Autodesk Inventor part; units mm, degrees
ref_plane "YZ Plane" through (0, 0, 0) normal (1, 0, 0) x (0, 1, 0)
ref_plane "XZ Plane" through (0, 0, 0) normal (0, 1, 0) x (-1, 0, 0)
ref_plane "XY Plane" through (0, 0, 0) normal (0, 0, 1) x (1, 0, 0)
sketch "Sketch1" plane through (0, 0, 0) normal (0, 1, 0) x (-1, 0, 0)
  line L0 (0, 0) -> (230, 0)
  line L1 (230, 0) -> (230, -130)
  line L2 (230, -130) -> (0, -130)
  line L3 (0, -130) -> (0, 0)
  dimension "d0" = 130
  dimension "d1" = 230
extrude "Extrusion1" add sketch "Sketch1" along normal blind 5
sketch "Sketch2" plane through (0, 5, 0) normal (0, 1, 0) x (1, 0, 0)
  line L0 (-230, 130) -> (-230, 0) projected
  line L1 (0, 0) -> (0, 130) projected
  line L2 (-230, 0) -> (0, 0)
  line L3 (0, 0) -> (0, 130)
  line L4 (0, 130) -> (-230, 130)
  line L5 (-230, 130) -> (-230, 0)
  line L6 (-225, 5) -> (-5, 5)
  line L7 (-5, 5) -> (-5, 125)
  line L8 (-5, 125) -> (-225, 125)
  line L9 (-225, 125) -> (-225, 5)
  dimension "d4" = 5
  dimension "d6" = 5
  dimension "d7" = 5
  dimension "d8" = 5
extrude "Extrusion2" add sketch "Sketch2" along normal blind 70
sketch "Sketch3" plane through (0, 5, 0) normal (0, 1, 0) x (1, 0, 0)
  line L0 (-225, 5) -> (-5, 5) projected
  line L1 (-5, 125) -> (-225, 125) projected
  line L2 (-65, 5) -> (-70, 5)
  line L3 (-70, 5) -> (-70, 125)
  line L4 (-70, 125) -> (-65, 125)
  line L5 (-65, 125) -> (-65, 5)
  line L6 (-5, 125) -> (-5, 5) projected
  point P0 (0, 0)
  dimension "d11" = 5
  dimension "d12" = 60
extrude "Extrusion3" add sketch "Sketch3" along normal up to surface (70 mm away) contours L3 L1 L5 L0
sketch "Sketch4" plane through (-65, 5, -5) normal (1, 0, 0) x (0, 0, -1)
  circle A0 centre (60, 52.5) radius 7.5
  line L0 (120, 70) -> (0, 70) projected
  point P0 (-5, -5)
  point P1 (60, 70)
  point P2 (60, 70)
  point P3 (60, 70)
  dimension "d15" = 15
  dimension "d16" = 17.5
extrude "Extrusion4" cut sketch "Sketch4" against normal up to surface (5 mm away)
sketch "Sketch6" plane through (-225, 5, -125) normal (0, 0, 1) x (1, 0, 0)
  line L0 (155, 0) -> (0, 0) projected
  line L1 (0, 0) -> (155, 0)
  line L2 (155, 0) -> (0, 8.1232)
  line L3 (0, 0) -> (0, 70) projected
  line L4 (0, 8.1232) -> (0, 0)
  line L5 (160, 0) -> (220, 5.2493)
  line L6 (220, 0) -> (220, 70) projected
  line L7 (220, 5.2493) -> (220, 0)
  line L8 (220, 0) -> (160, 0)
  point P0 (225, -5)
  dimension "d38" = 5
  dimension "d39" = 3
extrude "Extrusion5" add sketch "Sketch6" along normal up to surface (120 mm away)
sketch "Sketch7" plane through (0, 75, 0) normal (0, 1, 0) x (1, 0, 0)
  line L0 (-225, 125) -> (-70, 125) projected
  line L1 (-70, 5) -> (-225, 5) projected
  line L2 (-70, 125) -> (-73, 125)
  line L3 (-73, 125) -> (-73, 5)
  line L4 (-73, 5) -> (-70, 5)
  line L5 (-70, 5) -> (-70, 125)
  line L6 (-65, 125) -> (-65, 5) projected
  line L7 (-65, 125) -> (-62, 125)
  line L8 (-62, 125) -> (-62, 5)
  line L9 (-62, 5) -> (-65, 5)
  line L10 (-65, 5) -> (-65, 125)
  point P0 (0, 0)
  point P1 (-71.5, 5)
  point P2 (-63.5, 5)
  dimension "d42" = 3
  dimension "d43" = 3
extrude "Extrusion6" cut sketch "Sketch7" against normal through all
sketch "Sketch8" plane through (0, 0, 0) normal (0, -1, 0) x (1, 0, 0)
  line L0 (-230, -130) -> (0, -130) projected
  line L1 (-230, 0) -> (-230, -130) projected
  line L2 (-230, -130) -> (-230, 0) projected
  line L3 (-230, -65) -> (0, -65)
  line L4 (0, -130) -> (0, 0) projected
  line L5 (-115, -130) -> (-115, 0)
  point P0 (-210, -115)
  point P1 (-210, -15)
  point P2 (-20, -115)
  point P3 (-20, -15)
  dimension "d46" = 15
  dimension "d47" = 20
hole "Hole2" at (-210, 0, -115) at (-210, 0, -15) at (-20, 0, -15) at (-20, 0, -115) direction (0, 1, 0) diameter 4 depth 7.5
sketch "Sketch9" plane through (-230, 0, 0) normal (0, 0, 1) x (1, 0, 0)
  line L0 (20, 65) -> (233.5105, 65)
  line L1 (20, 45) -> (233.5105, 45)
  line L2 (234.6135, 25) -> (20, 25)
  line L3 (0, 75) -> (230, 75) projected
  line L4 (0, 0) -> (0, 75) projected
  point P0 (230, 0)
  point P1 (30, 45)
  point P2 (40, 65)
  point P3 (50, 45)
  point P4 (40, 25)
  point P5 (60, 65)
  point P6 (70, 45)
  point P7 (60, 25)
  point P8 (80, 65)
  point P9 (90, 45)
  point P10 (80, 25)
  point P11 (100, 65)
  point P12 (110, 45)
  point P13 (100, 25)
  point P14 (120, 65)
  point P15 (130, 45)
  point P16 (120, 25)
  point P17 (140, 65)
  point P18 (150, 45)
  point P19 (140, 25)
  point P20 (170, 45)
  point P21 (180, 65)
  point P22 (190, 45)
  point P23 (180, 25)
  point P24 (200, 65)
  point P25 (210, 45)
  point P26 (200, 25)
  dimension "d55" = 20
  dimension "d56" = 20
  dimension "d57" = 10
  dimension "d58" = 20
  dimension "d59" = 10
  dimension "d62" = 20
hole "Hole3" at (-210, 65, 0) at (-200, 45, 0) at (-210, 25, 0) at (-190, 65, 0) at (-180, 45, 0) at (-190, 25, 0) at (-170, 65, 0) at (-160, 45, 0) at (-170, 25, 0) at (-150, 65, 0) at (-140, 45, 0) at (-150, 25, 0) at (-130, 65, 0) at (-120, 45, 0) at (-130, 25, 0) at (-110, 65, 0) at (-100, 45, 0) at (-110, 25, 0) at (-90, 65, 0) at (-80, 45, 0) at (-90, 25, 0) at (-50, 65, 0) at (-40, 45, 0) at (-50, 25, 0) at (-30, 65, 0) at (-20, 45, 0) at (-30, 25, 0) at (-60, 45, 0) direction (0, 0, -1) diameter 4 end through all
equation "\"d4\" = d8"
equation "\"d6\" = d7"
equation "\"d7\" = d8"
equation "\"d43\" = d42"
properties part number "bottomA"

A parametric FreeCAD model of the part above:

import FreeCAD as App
import Part
import Sketcher

V = App.Vector
Q = App.Units.Quantity

doc = App.newDocument("Part")
params = doc.addObject("Spreadsheet::Sheet", "Params")
for row, (alias, value) in enumerate([
    ("sketch1_width", "230 mm"),
    ("sketch1_height", "130 mm"),
    ("pad1_length", "5 mm"),
    ("sketch2_width", "230 mm"),
    ("sketch2_height", "130 mm"),
    ("pad2_length", "70 mm"),
    ("sketch3_width", "5 mm"),
    ("sketch3_height", "120 mm"),
    ("pad3_length", "70 mm"),
    ("sketch4_diameter", "15 mm"),
    ("pocket1_length", "5 mm"),
    ("sketch5_width", "155 mm"),
    ("sketch5_width2", "60 mm"),
    ("pad4_length", "120 mm"),
    ("sketch6_width", "3 mm"),
    ("sketch6_height", "120 mm"),
    ("sketch7_diameter", "4 mm"),
    ("hole_diameter", "4 mm"),
    ("hole_depth", "7.5 mm"),
    ("sketch8_diameter", "4 mm"),
    ("hole2_diameter", "4 mm"),
], start=1):
    params.set(f"A{row}", alias)
    params.set(f"B{row}", "=" + value)
    params.setAlias(f"B{row}", alias)

body = doc.addObject("PartDesign::Body", "Body")

# Sketch on XZ plane
sketch1 = body.newObject("Sketcher::SketchObject", "Sketch")
sketch1.AttachmentSupport = (doc.getObject("XZ_Plane"), [""])
sketch1.MapMode = "FlatFace"
sketch1.addGeometry([
    Part.LineSegment(V(-230, 0, 0), V(0, 0, 0)),
    Part.LineSegment(V(0, 0, 0), V(0, -130, 0)),
    Part.LineSegment(V(0, -130, 0), V(-230, -130, 0)),
    Part.LineSegment(V(-230, -130, 0), V(-230, 0, 0)),
], False)
sketch1.addConstraint([
    Sketcher.Constraint("Coincident", 0, 2, 1, 1),
    Sketcher.Constraint("Coincident", 1, 2, 2, 1),
    Sketcher.Constraint("Coincident", 2, 2, 3, 1),
    Sketcher.Constraint("Coincident", 3, 2, 0, 1),
    Sketcher.Constraint("Horizontal", 0),
    Sketcher.Constraint("Vertical", 1),
    Sketcher.Constraint("Horizontal", 2),
    Sketcher.Constraint("Vertical", 3),
    Sketcher.Constraint("Coincident", 0, 2, -1, 1),
    Sketcher.Constraint("DistanceX", 0, 1, 0, 2, Q("230 mm")),
    Sketcher.Constraint("DistanceY", 1, 2, 1, 1, Q("130 mm")),
])
sketch1.setExpression("Constraints[9]", "Params.sketch1_width")
sketch1.setExpression("Constraints[10]", "Params.sketch1_height")
pad1 = body.newObject("PartDesign::Pad", "Pad")
pad1.Profile = sketch1
pad1.setExpression("Length", "Params.pad1_length")
pad1.Reversed = True

# Sketch on XZ plane
sketch2 = body.newObject("Sketcher::SketchObject", "Sketch001")
sketch2.AttachmentSupport = (doc.getObject("XZ_Plane"), [""])
sketch2.MapMode = "FlatFace"
sketch2.AttachmentOffset = App.Placement(V(0, 0, -5), App.Rotation())
sketch2.addGeometry([
    Part.LineSegment(V(0, -130, 0), V(-230, -130, 0)),  # 0
    Part.LineSegment(V(-230, -130, 0), V(-230, 0, 0)),  # 1
    Part.LineSegment(V(-230, 0, 0), V(0, 0, 0)),  # 2
    Part.LineSegment(V(0, 0, 0), V(0, -130, 0)),  # 3
    Part.LineSegment(V(-5, -5, 0), V(-225, -5, 0)),  # 4
    Part.LineSegment(V(-225, -5, 0), V(-225, -125, 0)),  # 5
    Part.LineSegment(V(-225, -125, 0), V(-5, -125, 0)),  # 6
    Part.LineSegment(V(-5, -125, 0), V(-5, -5, 0)),  # 7
], False)
sketch2.addConstraint([
    Sketcher.Constraint("Coincident", 0, 2, 1, 1),
    Sketcher.Constraint("Coincident", 1, 2, 2, 1),
    Sketcher.Constraint("Coincident", 2, 2, 3, 1),
    Sketcher.Constraint("Coincident", 3, 2, 0, 1),
    Sketcher.Constraint("Coincident", 4, 2, 5, 1),
    Sketcher.Constraint("Coincident", 5, 2, 6, 1),
    Sketcher.Constraint("Coincident", 6, 2, 7, 1),
    Sketcher.Constraint("Coincident", 7, 2, 4, 1),
    Sketcher.Constraint("Horizontal", 0),
    Sketcher.Constraint("Vertical", 1),
    Sketcher.Constraint("Horizontal", 2),
    Sketcher.Constraint("Vertical", 3),
    Sketcher.Constraint("Horizontal", 4),
    Sketcher.Constraint("Vertical", 5),
    Sketcher.Constraint("Horizontal", 6),
    Sketcher.Constraint("Vertical", 7),
    Sketcher.Constraint("Coincident", 2, 2, -1, 1),
    Sketcher.Constraint("DistanceY", 4, 2, -1, 1, Q("5 mm")),
    Sketcher.Constraint("DistanceX", 6, 2, -1, 1, Q("5 mm")),
    Sketcher.Constraint("DistanceX", 1, 2, 4, 2, Q("5 mm")),
    Sketcher.Constraint("DistanceY", 0, 2, 5, 2, Q("5 mm")),
    Sketcher.Constraint("DistanceX", 0, 2, 0, 1, Q("230 mm")),
    Sketcher.Constraint("DistanceY", 1, 1, 1, 2, Q("130 mm")),
])
sketch2.setExpression("Constraints[21]", "Params.sketch2_width")
sketch2.setExpression("Constraints[22]", "Params.sketch2_height")
pad2 = body.newObject("PartDesign::Pad", "Pad001")
pad2.Profile = sketch2
pad2.setExpression("Length", "Params.pad2_length")
pad2.Reversed = True

# Sketch on XZ plane
sketch3 = body.newObject("Sketcher::SketchObject", "Sketch002")
sketch3.AttachmentSupport = (doc.getObject("XZ_Plane"), [""])
sketch3.MapMode = "FlatFace"
sketch3.AttachmentOffset = App.Placement(V(0, 0, -5), App.Rotation())
sketch3.addGeometry([
    Part.LineSegment(V(-70, -125, 0), V(-70, -5, 0)),
    Part.LineSegment(V(-70, -5, 0), V(-65, -5, 0)),
    Part.LineSegment(V(-65, -5, 0), V(-65, -125, 0)),
    Part.LineSegment(V(-65, -125, 0), V(-70, -125, 0)),
], False)
sketch3.addConstraint([
    Sketcher.Constraint("Coincident", 0, 2, 1, 1),
    Sketcher.Constraint("Coincident", 1, 2, 2, 1),
    Sketcher.Constraint("Coincident", 2, 2, 3, 1),
    Sketcher.Constraint("Coincident", 3, 2, 0, 1),
    Sketcher.Constraint("Vertical", 0),
    Sketcher.Constraint("Horizontal", 1),
    Sketcher.Constraint("Vertical", 2),
    Sketcher.Constraint("Horizontal", 3),
    Sketcher.Constraint("DistanceX", 1, 1, 1, 2, Q("5 mm")),
    Sketcher.Constraint("DistanceY", 0, 2, -1, 1, Q("5 mm")),
    Sketcher.Constraint("DistanceY", 0, 1, 0, 2, Q("120 mm")),
    Sketcher.Constraint("DistanceX", 0, 2, -1, 1, Q("70 mm")),
])
sketch3.setExpression("Constraints[8]", "Params.sketch3_width")
sketch3.setExpression("Constraints[10]", "Params.sketch3_height")
pad3 = body.newObject("PartDesign::Pad", "Pad002")
pad3.Profile = sketch3
pad3.setExpression("Length", "Params.pad3_length")
pad3.Reversed = True

# Sketch on YZ plane
sketch4 = body.newObject("Sketcher::SketchObject", "Sketch003")
sketch4.AttachmentSupport = (doc.getObject("YZ_Plane"), [""])
sketch4.MapMode = "FlatFace"
sketch4.AttachmentOffset = App.Placement(V(0, 0, -65), App.Rotation())
sketch4.addGeometry(Part.Circle(V(58, -65, 0), V(0, 0, 1), 8), False)
sketch4.addConstraint([
    Sketcher.Constraint("Diameter", 0, Q("15 mm")),
    Sketcher.Constraint("DistanceY", 0, 3, -1, 1, Q("65 mm")),
    Sketcher.Constraint("DistanceX", -1, 1, 0, 3, Q("57.5 mm")),
])
sketch4.setExpression("Constraints[0]", "Params.sketch4_diameter")
pocket1 = body.newObject("PartDesign::Pocket", "Pocket")
pocket1.Profile = sketch4
pocket1.setExpression("Length", "Params.pocket1_length")

# Sketch on XY plane
sketch5 = body.newObject("Sketcher::SketchObject", "Sketch004")
sketch5.AttachmentSupport = (doc.getObject("XY_Plane"), [""])
sketch5.MapMode = "FlatFace"
sketch5.AttachmentOffset = App.Placement(V(0, 0, -125), App.Rotation())
sketch5.addGeometry([
    Part.LineSegment(V(-225, 5, 0), V(-70, 5, 0)),  # 0
    Part.LineSegment(V(-70, 5, 0), V(-225, 13, 0)),  # 1
    Part.LineSegment(V(-225, 13, 0), V(-225, 5, 0)),  # 2
    Part.LineSegment(V(-5, 10, 0), V(-65, 5, 0)),  # 3
    Part.LineSegment(V(-65, 5, 0), V(-5, 5, 0)),  # 4
    Part.LineSegment(V(-5, 5, 0), V(-5, 10, 0)),  # 5
], False)
sketch5.addConstraint([
    Sketcher.Constraint("Coincident", 0, 2, 1, 1),
    Sketcher.Constraint("Coincident", 1, 2, 2, 1),
    Sketcher.Constraint("Coincident", 2, 2, 0, 1),
    Sketcher.Constraint("Coincident", 3, 2, 4, 1),
    Sketcher.Constraint("Coincident", 4, 2, 5, 1),
    Sketcher.Constraint("Coincident", 5, 2, 3, 1),
    Sketcher.Constraint("Horizontal", 0),
    Sketcher.Constraint("Vertical", 2),
    Sketcher.Constraint("Horizontal", 4),
    Sketcher.Constraint("Vertical", 5),
    Sketcher.Constraint("Horizontal", 2, 2, 3, 2),
    Sketcher.Constraint("DistanceY", -1, 1, 0, 2, Q("5 mm")),
    Sketcher.Constraint("DistanceX", 4, 2, -1, 1, Q("5 mm")),
    Sketcher.Constraint("DistanceX", 0, 2, 3, 2, Q("5 mm")),
    Sketcher.Constraint("DistanceX", 0, 1, 0, 2, Q("155 mm")),
    Sketcher.Constraint("DistanceX", 4, 1, 4, 2, Q("60 mm")),
    Sketcher.Constraint("Angle", 1, Q("177 deg")),
    Sketcher.Constraint("Angle", 3, Q("-175 deg")),
])
sketch5.setExpression("Constraints[14]", "Params.sketch5_width")
sketch5.setExpression("Constraints[15]", "Params.sketch5_width2")
pad4 = body.newObject("PartDesign::Pad", "Pad003")
pad4.Profile = sketch5
pad4.setExpression("Length", "Params.pad4_length")

# Sketch on XZ plane
sketch6 = body.newObject("Sketcher::SketchObject", "Sketch005")
sketch6.AttachmentSupport = (doc.getObject("XZ_Plane"), [""])
sketch6.MapMode = "FlatFace"
sketch6.AttachmentOffset = App.Placement(V(0, 0, -75), App.Rotation())
sketch6.addGeometry([
    Part.LineSegment(V(-70, -125, 0), V(-73, -125, 0)),  # 0
    Part.LineSegment(V(-73, -125, 0), V(-73, -5, 0)),  # 1
    Part.LineSegment(V(-73, -5, 0), V(-70, -5, 0)),  # 2
    Part.LineSegment(V(-70, -5, 0), V(-70, -125, 0)),  # 3
    Part.LineSegment(V(-62, -125, 0), V(-65, -125, 0)),  # 4
    Part.LineSegment(V(-65, -125, 0), V(-65, -5, 0)),  # 5
    Part.LineSegment(V(-65, -5, 0), V(-62, -5, 0)),  # 6
    Part.LineSegment(V(-62, -5, 0), V(-62, -125, 0)),  # 7
], False)
sketch6.addConstraint([
    Sketcher.Constraint("Coincident", 0, 2, 1, 1),
    Sketcher.Constraint("Coincident", 1, 2, 2, 1),
    Sketcher.Constraint("Coincident", 2, 2, 3, 1),
    Sketcher.Constraint("Coincident", 3, 2, 0, 1),
    Sketcher.Constraint("Coincident", 4, 2, 5, 1),
    Sketcher.Constraint("Coincident", 5, 2, 6, 1),
    Sketcher.Constraint("Coincident", 6, 2, 7, 1),
    Sketcher.Constraint("Coincident", 7, 2, 4, 1),
    Sketcher.Constraint("Horizontal", 0),
    Sketcher.Constraint("Vertical", 1),
    Sketcher.Constraint("Horizontal", 2),
    Sketcher.Constraint("Vertical", 3),
    Sketcher.Constraint("Horizontal", 4),
    Sketcher.Constraint("Vertical", 5),
    Sketcher.Constraint("Horizontal", 6),
    Sketcher.Constraint("Vertical", 7),
    Sketcher.Constraint("Horizontal", 3, 2, 4, 2),
    Sketcher.Constraint("Horizontal", 2, 2, 5, 2),
    Sketcher.Constraint("Equal", 2, 4),
    Sketcher.Constraint("DistanceX", 0, 2, 0, 1, Q("3 mm")),
    Sketcher.Constraint("DistanceY", 1, 1, 1, 2, Q("120 mm")),
    Sketcher.Constraint("DistanceX", 0, 2, -1, 1, Q("73 mm")),
    Sketcher.Constraint("DistanceY", 0, 2, -1, 1, Q("125 mm")),
    Sketcher.Constraint("DistanceX", 4, 2, -1, 1, Q("65 mm")),
])
sketch6.setExpression("Constraints[19]", "Params.sketch6_width")
sketch6.setExpression("Constraints[20]", "Params.sketch6_height")
pocket2 = body.newObject("PartDesign::Pocket", "Pocket001")
pocket2.Profile = sketch6
pocket2.Type = "ThroughAll"
pocket2.Reversed = True

# Sketch on XZ plane
sketch7 = body.newObject("Sketcher::SketchObject", "Sketch006")
sketch7.AttachmentSupport = (doc.getObject("XZ_Plane"), [""])
sketch7.MapMode = "FlatFace"
sketch7.addGeometry([
    Part.Circle(V(-210, -115, 0), V(0, 0, 1), 2),
    Part.Circle(V(-210, -15, 0), V(0, 0, 1), 2),
    Part.Circle(V(-20, -15, 0), V(0, 0, 1), 2),
    Part.Circle(V(-20, -115, 0), V(0, 0, 1), 2),
], False)
sketch7.addConstraint([
    Sketcher.Constraint("Equal", 0, 1),
    Sketcher.Constraint("Equal", 1, 2),
    Sketcher.Constraint("Equal", 2, 3),
    Sketcher.Constraint("Horizontal", 1, 3, 2, 3),
    Sketcher.Constraint("Horizontal", 0, 3, 3, 3),
    Sketcher.Constraint("Vertical", 0, 3, 1, 3),
    Sketcher.Constraint("Vertical", 2, 3, 3, 3),
    Sketcher.Constraint("Diameter", 0, Q("4 mm")),
    Sketcher.Constraint("DistanceX", 0, 3, -1, 1, Q("210 mm")),
    Sketcher.Constraint("DistanceY", 0, 3, -1, 1, Q("115 mm")),
    Sketcher.Constraint("DistanceY", 1, 3, -1, 1, Q("15 mm")),
    Sketcher.Constraint("DistanceX", 2, 3, -1, 1, Q("20 mm")),
])
sketch7.setExpression("Constraints[7]", "Params.sketch7_diameter")
doc.recompute()
hole = body.newObject("PartDesign::Hole", "Hole")
hole.Profile = sketch7
hole.ThreadType = "None"
hole.setExpression("Diameter", "Params.hole_diameter")
hole.DepthType = "Dimension"
hole.setExpression("Depth", "Params.hole_depth")
hole.DrillPoint = "Flat"

# Sketch on XY plane
sketch8 = body.newObject("Sketcher::SketchObject", "Sketch007")
sketch8.AttachmentSupport = (doc.getObject("XY_Plane"), [""])
sketch8.MapMode = "FlatFace"
sketch8.addGeometry([
    Part.Circle(V(-210, 65, 0), V(0, 0, 1), 2),  # 0
    Part.Circle(V(-200, 45, 0), V(0, 0, 1), 2),  # 1
    Part.Circle(V(-210, 25, 0), V(0, 0, 1), 2),  # 2
    Part.Circle(V(-190, 65, 0), V(0, 0, 1), 2),  # 3
    Part.Circle(V(-180, 45, 0), V(0, 0, 1), 2),  # 4
    Part.Circle(V(-190, 25, 0), V(0, 0, 1), 2),  # 5
    Part.Circle(V(-170, 65, 0), V(0, 0, 1), 2),  # 6
    Part.Circle(V(-160, 45, 0), V(0, 0, 1), 2),  # 7
    Part.Circle(V(-170, 25, 0), V(0, 0, 1), 2),  # 8
    Part.Circle(V(-150, 65, 0), V(0, 0, 1), 2),  # 9
    Part.Circle(V(-140, 45, 0), V(0, 0, 1), 2),  # 10
    Part.Circle(V(-150, 25, 0), V(0, 0, 1), 2),  # 11
    Part.Circle(V(-130, 65, 0), V(0, 0, 1), 2),  # 12
    Part.Circle(V(-120, 45, 0), V(0, 0, 1), 2),  # 13
    Part.Circle(V(-130, 25, 0), V(0, 0, 1), 2),  # 14
    Part.Circle(V(-110, 65, 0), V(0, 0, 1), 2),  # 15
    Part.Circle(V(-100, 45, 0), V(0, 0, 1), 2),  # 16
    Part.Circle(V(-110, 25, 0), V(0, 0, 1), 2),  # 17
    Part.Circle(V(-90, 65, 0), V(0, 0, 1), 2),  # 18
    Part.Circle(V(-80, 45, 0), V(0, 0, 1), 2),  # 19
    Part.Circle(V(-90, 25, 0), V(0, 0, 1), 2),  # 20
    Part.Circle(V(-50, 65, 0), V(0, 0, 1), 2),  # 21
    Part.Circle(V(-40, 45, 0), V(0, 0, 1), 2),  # 22
    Part.Circle(V(-50, 25, 0), V(0, 0, 1), 2),  # 23
    Part.Circle(V(-30, 65, 0), V(0, 0, 1), 2),  # 24
    Part.Circle(V(-20, 45, 0), V(0, 0, 1), 2),  # 25
    Part.Circle(V(-30, 25, 0), V(0, 0, 1), 2),  # 26
    Part.Circle(V(-60, 45, 0), V(0, 0, 1), 2),  # 27
], False)
sketch8.addConstraint([
    Sketcher.Constraint("Equal", 0, 1),
    Sketcher.Constraint("Equal", 1, 2),
    Sketcher.Constraint("Equal", 2, 3),
    Sketcher.Constraint("Equal", 3, 4),
    Sketcher.Constraint("Equal", 4, 5),
    Sketcher.Constraint("Equal", 5, 6),
    Sketcher.Constraint("Equal", 6, 7),
    Sketcher.Constraint("Equal", 7, 8),
    Sketcher.Constraint("Equal", 8, 9),
    Sketcher.Constraint("Equal", 9, 10),
    Sketcher.Constraint("Equal", 10, 11),
    Sketcher.Constraint("Equal", 11, 12),
    Sketcher.Constraint("Equal", 12, 13),
    Sketcher.Constraint("Equal", 13, 14),
    Sketcher.Constraint("Equal", 14, 15),
    Sketcher.Constraint("Equal", 15, 16),
    Sketcher.Constraint("Equal", 16, 17),
    Sketcher.Constraint("Equal", 17, 18),
    Sketcher.Constraint("Equal", 18, 19),
    Sketcher.Constraint("Equal", 19, 20),
    Sketcher.Constraint("Equal", 20, 21),
    Sketcher.Constraint("Equal", 21, 22),
    Sketcher.Constraint("Equal", 22, 23),
    Sketcher.Constraint("Equal", 23, 24),
    Sketcher.Constraint("Equal", 24, 25),
    Sketcher.Constraint("Equal", 25, 26),
    Sketcher.Constraint("Equal", 26, 27),
    Sketcher.Constraint("Horizontal", 0, 3, 3, 3),
    Sketcher.Constraint("Horizontal", 1, 3, 4, 3),
    Sketcher.Constraint("Horizontal", 2, 3, 5, 3),
    Sketcher.Constraint("Horizontal", 3, 3, 6, 3),
    Sketcher.Constraint("Horizontal", 4, 3, 7, 3),
    Sketcher.Constraint("Horizontal", 5, 3, 8, 3),
    Sketcher.Constraint("Horizontal", 6, 3, 9, 3),
    Sketcher.Constraint("Horizontal", 7, 3, 10, 3),
    Sketcher.Constraint("Horizontal", 8, 3, 11, 3),
    Sketcher.Constraint("Horizontal", 9, 3, 12, 3),
    Sketcher.Constraint("Horizontal", 10, 3, 13, 3),
    Sketcher.Constraint("Horizontal", 11, 3, 14, 3),
    Sketcher.Constraint("Horizontal", 12, 3, 15, 3),
    Sketcher.Constraint("Horizontal", 13, 3, 16, 3),
    Sketcher.Constraint("Horizontal", 14, 3, 17, 3),
    Sketcher.Constraint("Horizontal", 15, 3, 18, 3),
    Sketcher.Constraint("Horizontal", 16, 3, 19, 3),
    Sketcher.Constraint("Horizontal", 17, 3, 20, 3),
    Sketcher.Constraint("Horizontal", 18, 3, 21, 3),
    Sketcher.Constraint("Horizontal", 19, 3, 22, 3),
    Sketcher.Constraint("Horizontal", 20, 3, 23, 3),
    Sketcher.Constraint("Horizontal", 21, 3, 24, 3),
    Sketcher.Constraint("Horizontal", 22, 3, 25, 3),
    Sketcher.Constraint("Horizontal", 23, 3, 26, 3),
    Sketcher.Constraint("Horizontal", 25, 3, 27, 3),
    Sketcher.Constraint("Vertical", 0, 3, 2, 3),
    Sketcher.Constraint("Vertical", 3, 3, 5, 3),
    Sketcher.Constraint("Vertical", 6, 3, 8, 3),
    Sketcher.Constraint("Vertical", 9, 3, 11, 3),
    Sketcher.Constraint("Vertical", 12, 3, 14, 3),
    Sketcher.Constraint("Vertical", 15, 3, 17, 3),
    Sketcher.Constraint("Vertical", 18, 3, 20, 3),
    Sketcher.Constraint("Vertical", 21, 3, 23, 3),
    Sketcher.Constraint("Vertical", 24, 3, 26, 3),
    Sketcher.Constraint("Diameter", 0, Q("4 mm")),
    Sketcher.Constraint("DistanceX", 0, 3, -1, 1, Q("210 mm")),
    Sketcher.Constraint("DistanceY", -1, 1, 0, 3, Q("65 mm")),
    Sketcher.Constraint("DistanceX", 1, 3, -1, 1, Q("200 mm")),
    Sketcher.Constraint("DistanceY", -1, 1, 1, 3, Q("45 mm")),
    Sketcher.Constraint("DistanceY", -1, 1, 2, 3, Q("25 mm")),
    Sketcher.Constraint("DistanceX", 3, 3, -1, 1, Q("190 mm")),
    Sketcher.Constraint("DistanceX", 4, 3, -1, 1, Q("180 mm")),
    Sketcher.Constraint("DistanceX", 6, 3, -1, 1, Q("170 mm")),
    Sketcher.Constraint("DistanceX", 7, 3, -1, 1, Q("160 mm")),
    Sketcher.Constraint("DistanceX", 9, 3, -1, 1, Q("150 mm")),
    Sketcher.Constraint("DistanceX", 10, 3, -1, 1, Q("140 mm")),
    Sketcher.Constraint("DistanceX", 12, 3, -1, 1, Q("130 mm")),
    Sketcher.Constraint("DistanceX", 13, 3, -1, 1, Q("120 mm")),
    Sketcher.Constraint("DistanceX", 15, 3, -1, 1, Q("110 mm")),
    Sketcher.Constraint("DistanceX", 16, 3, -1, 1, Q("100 mm")),
    Sketcher.Constraint("DistanceX", 18, 3, -1, 1, Q("90 mm")),
    Sketcher.Constraint("DistanceX", 19, 3, -1, 1, Q("80 mm")),
    Sketcher.Constraint("DistanceX", 21, 3, -1, 1, Q("50 mm")),
    Sketcher.Constraint("DistanceX", 22, 3, -1, 1, Q("40 mm")),
    Sketcher.Constraint("DistanceX", 24, 3, -1, 1, Q("30 mm")),
    Sketcher.Constraint("DistanceX", 25, 3, -1, 1, Q("20 mm")),
    Sketcher.Constraint("DistanceX", 27, 3, -1, 1, Q("60 mm")),
])
sketch8.setExpression("Constraints[61]", "Params.sketch8_diameter")
doc.recompute()
hole2 = body.newObject("PartDesign::Hole", "Hole001")
hole2.Profile = sketch8
hole2.ThreadType = "None"
hole2.setExpression("Diameter", "Params.hole2_diameter")
hole2.DepthType = "ThroughAll"

doc.recompute()
